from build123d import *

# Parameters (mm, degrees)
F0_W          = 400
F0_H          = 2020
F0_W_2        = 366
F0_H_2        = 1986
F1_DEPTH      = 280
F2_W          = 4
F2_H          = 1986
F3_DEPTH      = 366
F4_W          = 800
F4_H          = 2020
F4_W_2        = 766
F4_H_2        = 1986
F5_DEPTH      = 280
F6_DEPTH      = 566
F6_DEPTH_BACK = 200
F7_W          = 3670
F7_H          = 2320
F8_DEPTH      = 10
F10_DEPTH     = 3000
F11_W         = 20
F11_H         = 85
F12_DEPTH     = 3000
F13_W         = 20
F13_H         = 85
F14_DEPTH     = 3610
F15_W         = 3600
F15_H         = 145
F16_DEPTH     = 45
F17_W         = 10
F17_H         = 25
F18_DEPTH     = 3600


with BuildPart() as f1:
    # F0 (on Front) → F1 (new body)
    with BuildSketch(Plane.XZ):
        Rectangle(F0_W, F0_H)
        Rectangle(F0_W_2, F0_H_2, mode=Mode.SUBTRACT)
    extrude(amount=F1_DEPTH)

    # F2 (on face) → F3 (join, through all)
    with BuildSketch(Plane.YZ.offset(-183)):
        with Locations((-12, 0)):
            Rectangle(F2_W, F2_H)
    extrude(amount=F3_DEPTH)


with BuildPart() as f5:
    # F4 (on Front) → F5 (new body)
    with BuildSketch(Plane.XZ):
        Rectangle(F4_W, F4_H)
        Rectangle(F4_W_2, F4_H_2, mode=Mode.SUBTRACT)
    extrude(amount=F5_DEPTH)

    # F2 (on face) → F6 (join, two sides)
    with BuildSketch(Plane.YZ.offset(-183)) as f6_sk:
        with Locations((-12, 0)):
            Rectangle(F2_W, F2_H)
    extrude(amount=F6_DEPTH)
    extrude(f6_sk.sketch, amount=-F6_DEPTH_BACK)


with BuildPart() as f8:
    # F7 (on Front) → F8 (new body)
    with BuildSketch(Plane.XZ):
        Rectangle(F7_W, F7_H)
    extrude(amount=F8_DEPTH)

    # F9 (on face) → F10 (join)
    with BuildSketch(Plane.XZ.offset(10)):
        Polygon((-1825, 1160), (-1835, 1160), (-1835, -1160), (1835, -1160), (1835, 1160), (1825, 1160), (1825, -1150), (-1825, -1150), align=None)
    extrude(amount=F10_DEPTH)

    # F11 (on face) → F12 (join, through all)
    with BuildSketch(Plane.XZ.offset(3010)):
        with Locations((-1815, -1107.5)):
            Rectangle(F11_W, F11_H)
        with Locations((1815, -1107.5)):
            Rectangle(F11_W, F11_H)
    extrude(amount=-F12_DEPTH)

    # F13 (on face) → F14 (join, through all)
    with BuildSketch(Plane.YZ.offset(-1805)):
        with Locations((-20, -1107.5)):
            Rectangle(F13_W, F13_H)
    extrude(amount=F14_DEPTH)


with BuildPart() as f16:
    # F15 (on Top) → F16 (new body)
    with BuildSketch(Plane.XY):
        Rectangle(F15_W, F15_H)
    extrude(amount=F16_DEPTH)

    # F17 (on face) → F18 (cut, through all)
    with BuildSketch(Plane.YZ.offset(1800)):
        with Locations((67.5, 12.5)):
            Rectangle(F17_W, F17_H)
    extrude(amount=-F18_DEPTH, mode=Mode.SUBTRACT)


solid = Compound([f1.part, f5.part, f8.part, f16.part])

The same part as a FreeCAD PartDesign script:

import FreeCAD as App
import Part
import Sketcher
from FreeCAD import Vector
Q = App.Units.Quantity

doc = App.newDocument("Part")
body = doc.addObject("PartDesign::Body", "Body")

# Sketch on XZ plane
sketch1 = body.newObject("Sketcher::SketchObject", "Sketch")
sketch1.AttachmentSupport = (doc.getObject("XZ_Plane"), [""])
sketch1.MapMode = "FlatFace"
sketch1.addGeometry([
    Part.LineSegment(Vector(-200, 1010, 0), Vector(-200, -1010, 0)),  # 0
    Part.LineSegment(Vector(-200, -1010, 0), Vector(200, -1010, 0)),  # 1
    Part.LineSegment(Vector(200, -1010, 0), Vector(200, 1010, 0)),  # 2
    Part.LineSegment(Vector(200, 1010, 0), Vector(-200, 1010, 0)),  # 3
    Part.LineSegment(Vector(183, -993, 0), Vector(-183, -993, 0)),  # 4
    Part.LineSegment(Vector(-183, -993, 0), Vector(-183, 993, 0)),  # 5
    Part.LineSegment(Vector(-183, 993, 0), Vector(183, 993, 0)),  # 6
    Part.LineSegment(Vector(183, 993, 0), Vector(183, -993, 0)),  # 7
], False)
sketch1.addConstraint([
    Sketcher.Constraint("Coincident", 0, 2, 1, 1),
    Sketcher.Constraint("Coincident", 1, 2, 2, 1),
    Sketcher.Constraint("Coincident", 2, 2, 3, 1),
    Sketcher.Constraint("Coincident", 3, 2, 0, 1),
    Sketcher.Constraint("Coincident", 4, 2, 5, 1),
    Sketcher.Constraint("Coincident", 5, 2, 6, 1),
    Sketcher.Constraint("Coincident", 6, 2, 7, 1),
    Sketcher.Constraint("Coincident", 7, 2, 4, 1),
    Sketcher.Constraint("Vertical", 0),
    Sketcher.Constraint("Horizontal", 1),
    Sketcher.Constraint("Vertical", 2),
    Sketcher.Constraint("Horizontal", 3),
    Sketcher.Constraint("Horizontal", 4),
    Sketcher.Constraint("Vertical", 5),
    Sketcher.Constraint("Horizontal", 6),
    Sketcher.Constraint("Vertical", 7),
    Sketcher.Constraint("Symmetric", 0, 2, 2, 2, -1, 1),
    Sketcher.Constraint("Symmetric", 4, 2, 6, 2, -1, 1),
    Sketcher.Constraint("DistanceX", 1, 1, 1, 2, Q("400 mm")),
    Sketcher.Constraint("DistanceX", 4, 2, 4, 1, Q("366 mm")),
    Sketcher.Constraint("DistanceY", 0, 2, 0, 1, Q("2020 mm")),
    Sketcher.Constraint("DistanceY", 5, 1, 5, 2, Q("1986 mm")),
])
pad1 = body.newObject("PartDesign::Pad", "Pad")
pad1.Profile = sketch1
pad1.Length = 280

# Sketch on YZ plane
sketch2 = body.newObject("Sketcher::SketchObject", "Sketch001")
sketch2.AttachmentSupport = (doc.getObject("YZ_Plane"), [""])
sketch2.MapMode = "FlatFace"
sketch2.AttachmentOffset = App.Placement(Vector(0, 0, -183), App.Rotation())
sketch2.addGeometry([
    Part.LineSegment(Vector(-14, 993, 0), Vector(-14, -993, 0)),
    Part.LineSegment(Vector(-14, -993, 0), Vector(-10, -993, 0)),
    Part.LineSegment(Vector(-10, -993, 0), Vector(-10, 993, 0)),
    Part.LineSegment(Vector(-10, 993, 0), Vector(-14, 993, 0)),
], False)
sketch2.addConstraint([
    Sketcher.Constraint("Coincident", 0, 2, 1, 1),
    Sketcher.Constraint("Coincident", 1, 2, 2, 1),
    Sketcher.Constraint("Coincident", 2, 2, 3, 1),
    Sketcher.Constraint("Coincident", 3, 2, 0, 1),
    Sketcher.Constraint("Vertical", 0),
    Sketcher.Constraint("Horizontal", 1),
    Sketcher.Constraint("Vertical", 2),
    Sketcher.Constraint("Horizontal", 3),
    Sketcher.Constraint("DistanceX", 1, 1, 1, 2, Q("4 mm")),
    Sketcher.Constraint("DistanceY", 0, 2, 0, 1, Q("1986 mm")),
    Sketcher.Constraint("DistanceX", 0, 2, -1, 1, Q("14 mm")),
    Sketcher.Constraint("DistanceY", 0, 2, -1, 1, Q("993 mm")),
])
pad2 = body.newObject("PartDesign::Pad", "Pad001")
pad2.Profile = sketch2
pad2.Type = "UpToLast"
body2 = doc.addObject("PartDesign::Body", "Body001")

# Sketch on XZ plane
sketch3 = body2.newObject("Sketcher::SketchObject", "Sketch002")
sketch3.AttachmentSupport = (doc.getObject("XZ_Plane001"), [""])
sketch3.MapMode = "FlatFace"
sketch3.addGeometry([
    Part.LineSegment(Vector(-400, 1010, 0), Vector(-400, -1010, 0)),  # 0
    Part.LineSegment(Vector(-400, -1010, 0), Vector(400, -1010, 0)),  # 1
    Part.LineSegment(Vector(400, -1010, 0), Vector(400, 1010, 0)),  # 2
    Part.LineSegment(Vector(400, 1010, 0), Vector(-400, 1010, 0)),  # 3
    Part.LineSegment(Vector(383, -993, 0), Vector(-383, -993, 0)),  # 4
    Part.LineSegment(Vector(-383, -993, 0), Vector(-383, 993, 0)),  # 5
    Part.LineSegment(Vector(-383, 993, 0), Vector(383, 993, 0)),  # 6
    Part.LineSegment(Vector(383, 993, 0), Vector(383, -993, 0)),  # 7
], False)
sketch3.addConstraint([
    Sketcher.Constraint("Coincident", 0, 2, 1, 1),
    Sketcher.Constraint("Coincident", 1, 2, 2, 1),
    Sketcher.Constraint("Coincident", 2, 2, 3, 1),
    Sketcher.Constraint("Coincident", 3, 2, 0, 1),
    Sketcher.Constraint("Coincident", 4, 2, 5, 1),
    Sketcher.Constraint("Coincident", 5, 2, 6, 1),
    Sketcher.Constraint("Coincident", 6, 2, 7, 1),
    Sketcher.Constraint("Coincident", 7, 2, 4, 1),
    Sketcher.Constraint("Vertical", 0),
    Sketcher.Constraint("Horizontal", 1),
    Sketcher.Constraint("Vertical", 2),
    Sketcher.Constraint("Horizontal", 3),
    Sketcher.Constraint("Horizontal", 4),
    Sketcher.Constraint("Vertical", 5),
    Sketcher.Constraint("Horizontal", 6),
    Sketcher.Constraint("Vertical", 7),
    Sketcher.Constraint("Symmetric", 0, 2, 2, 2, -1, 1),
    Sketcher.Constraint("Symmetric", 4, 2, 6, 2, -1, 1),
    Sketcher.Constraint("DistanceX", 1, 1, 1, 2, Q("800 mm")),
    Sketcher.Constraint("DistanceX", 4, 2, 4, 1, Q("766 mm")),
    Sketcher.Constraint("DistanceY", 0, 2, 0, 1, Q("2020 mm")),
    Sketcher.Constraint("DistanceY", 5, 1, 5, 2, Q("1986 mm")),
])
pad3 = body2.newObject("PartDesign::Pad", "Pad002")
pad3.Profile = sketch3
pad3.Length = 280

# Sketch on YZ plane
sketch4 = body2.newObject("Sketcher::SketchObject", "Sketch003")
sketch4.AttachmentSupport = (doc.getObject("YZ_Plane001"), [""])
sketch4.MapMode = "FlatFace"
sketch4.AttachmentOffset = App.Placement(Vector(0, 0, -183), App.Rotation())
sketch4.addGeometry([
    Part.LineSegment(Vector(-14, 993, 0), Vector(-14, -993, 0)),
    Part.LineSegment(Vector(-14, -993, 0), Vector(-10, -993, 0)),
    Part.LineSegment(Vector(-10, -993, 0), Vector(-10, 993, 0)),
    Part.LineSegment(Vector(-10, 993, 0), Vector(-14, 993, 0)),
], False)
sketch4.addConstraint([
    Sketcher.Constraint("Coincident", 0, 2, 1, 1),
    Sketcher.Constraint("Coincident", 1, 2, 2, 1),
    Sketcher.Constraint("Coincident", 2, 2, 3, 1),
    Sketcher.Constraint("Coincident", 3, 2, 0, 1),
    Sketcher.Constraint("Vertical", 0),
    Sketcher.Constraint("Horizontal", 1),
    Sketcher.Constraint("Vertical", 2),
    Sketcher.Constraint("Horizontal", 3),
    Sketcher.Constraint("DistanceX", 1, 1, 1, 2, Q("4 mm")),
    Sketcher.Constraint("DistanceY", 0, 2, 0, 1, Q("1986 mm")),
    Sketcher.Constraint("DistanceX", 0, 2, -1, 1, Q("14 mm")),
    Sketcher.Constraint("DistanceY", 0, 2, -1, 1, Q("993 mm")),
])
pad4 = body2.newObject("PartDesign::Pad", "Pad003")
pad4.Profile = sketch4
pad4.Type = "TwoLengths"
pad4.Length = 566
pad4.Length2 = 200
body3 = doc.addObject("PartDesign::Body", "Body002")

# Sketch on XZ plane
sketch5 = body3.newObject("Sketcher::SketchObject", "Sketch004")
sketch5.AttachmentSupport = (doc.getObject("XZ_Plane002"), [""])
sketch5.MapMode = "FlatFace"
sketch5.addGeometry([
    Part.LineSegment(Vector(-1835, 1160, 0), Vector(-1835, -1160, 0)),
    Part.LineSegment(Vector(-1835, -1160, 0), Vector(1835, -1160, 0)),
    Part.LineSegment(Vector(1835, -1160, 0), Vector(1835, 1160, 0)),
    Part.LineSegment(Vector(1835, 1160, 0), Vector(-1835, 1160, 0)),
], False)
sketch5.addConstraint([
    Sketcher.Constraint("Coincident", 0, 2, 1, 1),
    Sketcher.Constraint("Coincident", 1, 2, 2, 1),
    Sketcher.Constraint("Coincident", 2, 2, 3, 1),
    Sketcher.Constraint("Coincident", 3, 2, 0, 1),
    Sketcher.Constraint("Vertical", 0),
    Sketcher.Constraint("Horizontal", 1),
    Sketcher.Constraint("Vertical", 2),
    Sketcher.Constraint("Horizontal", 3),
    Sketcher.Constraint("Symmetric", 0, 2, 2, 2, -1, 1),
    Sketcher.Constraint("DistanceX", 1, 1, 1, 2, Q("3670 mm")),
    Sketcher.Constraint("DistanceY", 0, 2, 0, 1, Q("2320 mm")),
])
pad5 = body3.newObject("PartDesign::Pad", "Pad004")
pad5.Profile = sketch5
pad5.Length = 10

# Sketch on XZ plane
sketch6 = body3.newObject("Sketcher::SketchObject", "Sketch005")
sketch6.AttachmentSupport = (doc.getObject("XZ_Plane002"), [""])
sketch6.MapMode = "FlatFace"
sketch6.AttachmentOffset = App.Placement(Vector(0, 0, 10), App.Rotation())
sketch6.addGeometry([
    Part.LineSegment(Vector(-1825, 1160, 0), Vector(-1835, 1160, 0)),  # 0
    Part.LineSegment(Vector(-1835, 1160, 0), Vector(-1835, -1160, 0)),  # 1
    Part.LineSegment(Vector(-1835, -1160, 0), Vector(1835, -1160, 0)),  # 2
    Part.LineSegment(Vector(1835, -1160, 0), Vector(1835, 1160, 0)),  # 3
    Part.LineSegment(Vector(1835, 1160, 0), Vector(1825, 1160, 0)),  # 4
    Part.LineSegment(Vector(1825, 1160, 0), Vector(1825, -1150, 0)),  # 5
    Part.LineSegment(Vector(1825, -1150, 0), Vector(-1825, -1150, 0)),  # 6
    Part.LineSegment(Vector(-1825, -1150, 0), Vector(-1825, 1160, 0)),  # 7
], False)
sketch6.addConstraint([
    Sketcher.Constraint("Coincident", 0, 2, 1, 1),
    Sketcher.Constraint("Coincident", 1, 2, 2, 1),
    Sketcher.Constraint("Coincident", 2, 2, 3, 1),
    Sketcher.Constraint("Coincident", 3, 2, 4, 1),
    Sketcher.Constraint("Coincident", 4, 2, 5, 1),
    Sketcher.Constraint("Coincident", 5, 2, 6, 1),
    Sketcher.Constraint("Coincident", 6, 2, 7, 1),
    Sketcher.Constraint("Coincident", 7, 2, 0, 1),
    Sketcher.Constraint("Horizontal", 0),
    Sketcher.Constraint("Vertical", 1),
    Sketcher.Constraint("Horizontal", 2),
    Sketcher.Constraint("Vertical", 3),
    Sketcher.Constraint("Horizontal", 4),
    Sketcher.Constraint("Vertical", 5),
    Sketcher.Constraint("Horizontal", 6),
    Sketcher.Constraint("Vertical", 7),
    Sketcher.Constraint("Symmetric", 0, 2, 2, 2, -1, 1),
    Sketcher.Constraint("Symmetric", 4, 2, 7, 2, -2),
    Sketcher.Constraint("DistanceX", 0, 2, 0, 1, Q("10 mm")),
    Sketcher.Constraint("DistanceX", 2, 1, 2, 2, Q("3670 mm")),
    Sketcher.Constraint("DistanceY", 1, 2, 1, 1, Q("2320 mm")),
    Sketcher.Constraint("DistanceY", 5, 2, 5, 1, Q("2310 mm")),
])
pad6 = body3.newObject("PartDesign::Pad", "Pad005")
pad6.Profile = sketch6
pad6.Length = 3000

# Sketch on XZ plane
sketch7 = body3.newObject("Sketcher::SketchObject", "Sketch006")
sketch7.AttachmentSupport = (doc.getObject("XZ_Plane002"), [""])
sketch7.MapMode = "FlatFace"
sketch7.AttachmentOffset = App.Placement(Vector(0, 0, 3010), App.Rotation())
sketch7.addGeometry([
    Part.LineSegment(Vector(-1825, -1065, 0), Vector(-1825, -1150, 0)),  # 0
    Part.LineSegment(Vector(-1825, -1150, 0), Vector(-1805, -1150, 0)),  # 1
    Part.LineSegment(Vector(-1805, -1150, 0), Vector(-1805, -1065, 0)),  # 2
    Part.LineSegment(Vector(-1805, -1065, 0), Vector(-1825, -1065, 0)),  # 3
    Part.LineSegment(Vector(1805, -1065, 0), Vector(1805, -1150, 0)),  # 4
    Part.LineSegment(Vector(1805, -1150, 0), Vector(1825, -1150, 0)),  # 5
    Part.LineSegment(Vector(1825, -1150, 0), Vector(1825, -1065, 0)),  # 6
    Part.LineSegment(Vector(1825, -1065, 0), Vector(1805, -1065, 0)),  # 7
], False)
sketch7.addConstraint([
    Sketcher.Constraint("Coincident", 0, 2, 1, 1),
    Sketcher.Constraint("Coincident", 1, 2, 2, 1),
    Sketcher.Constraint("Coincident", 2, 2, 3, 1),
    Sketcher.Constraint("Coincident", 3, 2, 0, 1),
    Sketcher.Constraint("Coincident", 4, 2, 5, 1),
    Sketcher.Constraint("Coincident", 5, 2, 6, 1),
    Sketcher.Constraint("Coincident", 6, 2, 7, 1),
    Sketcher.Constraint("Coincident", 7, 2, 4, 1),
    Sketcher.Constraint("Vertical", 0),
    Sketcher.Constraint("Horizontal", 1),
    Sketcher.Constraint("Vertical", 2),
    Sketcher.Constraint("Horizontal", 3),
    Sketcher.Constraint("Vertical", 4),
    Sketcher.Constraint("Horizontal", 5),
    Sketcher.Constraint("Vertical", 6),
    Sketcher.Constraint("Horizontal", 7),
    Sketcher.Constraint("Symmetric", 1, 2, 4, 2, -2),
    Sketcher.Constraint("Symmetric", 3, 2, 6, 2, -2),
    Sketcher.Constraint("DistanceX", 1, 1, 1, 2, Q("20 mm")),
    Sketcher.Constraint("DistanceY", 0, 2, 0, 1, Q("85 mm")),
    Sketcher.Constraint("DistanceX", 0, 2, -1, 1, Q("1825 mm")),
    Sketcher.Constraint("DistanceY", 0, 2, -1, 1, Q("1150 mm")),
])
pad7 = body3.newObject("PartDesign::Pad", "Pad006")
pad7.Profile = sketch7
pad7.Type = "UpToLast"
pad7.Reversed = True

# Sketch on YZ plane
sketch8 = body3.newObject("Sketcher::SketchObject", "Sketch007")
sketch8.AttachmentSupport = (doc.getObject("YZ_Plane002"), [""])
sketch8.MapMode = "FlatFace"
sketch8.AttachmentOffset = App.Placement(Vector(0, 0, -1805), App.Rotation())
sketch8.addGeometry([
    Part.LineSegment(Vector(-30, -1065, 0), Vector(-30, -1150, 0)),
    Part.LineSegment(Vector(-30, -1150, 0), Vector(-10, -1150, 0)),
    Part.LineSegment(Vector(-10, -1150, 0), Vector(-10, -1065, 0)),
    Part.LineSegment(Vector(-10, -1065, 0), Vector(-30, -1065, 0)),
], False)
sketch8.addConstraint([
    Sketcher.Constraint("Coincident", 0, 2, 1, 1),
    Sketcher.Constraint("Coincident", 1, 2, 2, 1),
    Sketcher.Constraint("Coincident", 2, 2, 3, 1),
    Sketcher.Constraint("Coincident", 3, 2, 0, 1),
    Sketcher.Constraint("Vertical", 0),
    Sketcher.Constraint("Horizontal", 1),
    Sketcher.Constraint("Vertical", 2),
    Sketcher.Constraint("Horizontal", 3),
    Sketcher.Constraint("DistanceX", 1, 1, 1, 2, Q("20 mm")),
    Sketcher.Constraint("DistanceY", 0, 2, 0, 1, Q("85 mm")),
    Sketcher.Constraint("DistanceX", 0, 2, -1, 1, Q("30 mm")),
    Sketcher.Constraint("DistanceY", 0, 2, -1, 1, Q("1150 mm")),
])
pad8 = body3.newObject("PartDesign::Pad", "Pad007")
pad8.Profile = sketch8
pad8.Type = "UpToLast"
body4 = doc.addObject("PartDesign::Body", "Body003")

# Sketch on XY plane
sketch9 = body4.newObject("Sketcher::SketchObject", "Sketch008")
sketch9.AttachmentSupport = (doc.getObject("XY_Plane003"), [""])
sketch9.MapMode = "FlatFace"
sketch9.addGeometry([
    Part.LineSegment(Vector(-1800, 72, 0), Vector(-1800, -72, 0)),
    Part.LineSegment(Vector(-1800, -72, 0), Vector(1800, -72, 0)),
    Part.LineSegment(Vector(1800, -72, 0), Vector(1800, 72, 0)),
    Part.LineSegment(Vector(1800, 72, 0), Vector(-1800, 72, 0)),
], False)
sketch9.addConstraint([
    Sketcher.Constraint("Coincident", 0, 2, 1, 1),
    Sketcher.Constraint("Coincident", 1, 2, 2, 1),
    Sketcher.Constraint("Coincident", 2, 2, 3, 1),
    Sketcher.Constraint("Coincident", 3, 2, 0, 1),
    Sketcher.Constraint("Vertical", 0),
    Sketcher.Constraint("Horizontal", 1),
    Sketcher.Constraint("Vertical", 2),
    Sketcher.Constraint("Horizontal", 3),
    Sketcher.Constraint("Symmetric", 0, 2, 2, 2, -1, 1),
    Sketcher.Constraint("DistanceX", 1, 1, 1, 2, Q("3600 mm")),
    Sketcher.Constraint("DistanceY", 0, 2, 0, 1, Q("145 mm")),
])
pad9 = body4.newObject("PartDesign::Pad", "Pad008")
pad9.Profile = sketch9
pad9.Length = 45

# Sketch on YZ plane
sketch10 = body4.newObject("Sketcher::SketchObject", "Sketch009")
sketch10.AttachmentSupport = (doc.getObject("YZ_Plane003"), [""])
sketch10.MapMode = "FlatFace"
sketch10.AttachmentOffset = App.Placement(Vector(0, 0, 1800), App.Rotation())
sketch10.addGeometry([
    Part.LineSegment(Vector(62, 25, 0), Vector(62, 0, 0)),
    Part.LineSegment(Vector(62, 0, 0), Vector(72, 0, 0)),
    Part.LineSegment(Vector(72, 0, 0), Vector(72, 25, 0)),
    Part.LineSegment(Vector(72, 25, 0), Vector(62, 25, 0)),
], False)
sketch10.addConstraint([
    Sketcher.Constraint("Coincident", 0, 2, 1, 1),
    Sketcher.Constraint("Coincident", 1, 2, 2, 1),
    Sketcher.Constraint("Coincident", 2, 2, 3, 1),
    Sketcher.Constraint("Coincident", 3, 2, 0, 1),
    Sketcher.Constraint("Vertical", 0),
    Sketcher.Constraint("Horizontal", 1),
    Sketcher.Constraint("Vertical", 2),
    Sketcher.Constraint("Horizontal", 3),
    Sketcher.Constraint("PointOnObject", 0, 2, -1),
    Sketcher.Constraint("DistanceX", 1, 1, 1, 2, Q("10 mm")),
    Sketcher.Constraint("DistanceY", 0, 2, 0, 1, Q("25 mm")),
    Sketcher.Constraint("DistanceX", -1, 1, 0, 2, Q("62.5 mm")),
])
pocket1 = body4.newObject("PartDesign::Pocket", "Pocket")
pocket1.Profile = sketch10
pocket1.Type = "ThroughAll"

doc.recompute()
